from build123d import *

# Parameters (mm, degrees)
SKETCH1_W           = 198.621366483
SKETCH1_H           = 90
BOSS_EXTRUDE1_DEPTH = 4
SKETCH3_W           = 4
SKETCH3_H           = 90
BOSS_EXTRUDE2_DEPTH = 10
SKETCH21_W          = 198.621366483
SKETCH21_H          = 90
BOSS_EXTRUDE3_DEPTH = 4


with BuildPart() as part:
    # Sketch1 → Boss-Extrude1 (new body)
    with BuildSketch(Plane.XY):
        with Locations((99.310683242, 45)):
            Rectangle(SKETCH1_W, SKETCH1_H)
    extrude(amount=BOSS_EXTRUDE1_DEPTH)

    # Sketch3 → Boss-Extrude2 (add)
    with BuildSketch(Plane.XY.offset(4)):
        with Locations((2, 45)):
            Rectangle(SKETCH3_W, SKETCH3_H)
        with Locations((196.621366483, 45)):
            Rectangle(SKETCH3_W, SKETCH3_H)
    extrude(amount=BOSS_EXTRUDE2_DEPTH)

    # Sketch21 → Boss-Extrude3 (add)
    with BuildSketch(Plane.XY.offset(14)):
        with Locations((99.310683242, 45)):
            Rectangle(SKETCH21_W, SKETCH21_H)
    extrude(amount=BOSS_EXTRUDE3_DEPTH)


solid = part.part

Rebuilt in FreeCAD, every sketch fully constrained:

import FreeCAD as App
import Part
import Sketcher

V = App.Vector

doc = App.newDocument("Part")
body = doc.addObject("PartDesign::Body", "Body")

# Sketch on XY plane
sketch1 = body.newObject("Sketcher::SketchObject", "Sketch")
sketch1.AttachmentSupport = (doc.getObject("XY_Plane"), [""])
sketch1.MapMode = "FlatFace"
sketch1.addGeometry([
    Part.LineSegment(V(0, 90, 0), V(0, 0, 0)),
    Part.LineSegment(V(0, 0, 0), V(199, 0, 0)),
    Part.LineSegment(V(199, 0, 0), V(199, 90, 0)),
    Part.LineSegment(V(199, 90, 0), V(0, 90, 0)),
], False)
sketch1.addConstraint([
    Sketcher.Constraint("Coincident", 0, 2, 1, 1),
    Sketcher.Constraint("Coincident", 1, 2, 2, 1),
    Sketcher.Constraint("Coincident", 2, 2, 3, 1),
    Sketcher.Constraint("Coincident", 3, 2, 0, 1),
    Sketcher.Constraint("Vertical", 0),
    Sketcher.Constraint("Horizontal", 1),
    Sketcher.Constraint("Vertical", 2),
    Sketcher.Constraint("Horizontal", 3),
    Sketcher.Constraint("Coincident", 0, 2, -1, 1),
    Sketcher.Constraint("DistanceY", 0, 2, 0, 1, 90.0),
    Sketcher.Constraint("DistanceX", 1, 1, 1, 2, 198.621366),
])
pad1 = body.newObject("PartDesign::Pad", "Pad")
pad1.Profile = sketch1
pad1.Length = 4

# Sketch on XY plane
sketch2 = body.newObject("Sketcher::SketchObject", "Sketch001")
sketch2.AttachmentSupport = (doc.getObject("XY_Plane"), [""])
sketch2.MapMode = "FlatFace"
sketch2.AttachmentOffset = App.Placement(V(0, 0, 4), App.Rotation())
sketch2.addGeometry([
    Part.LineSegment(V(0, 90, 0), V(0, 0, 0)),  # 0
    Part.LineSegment(V(0, 0, 0), V(4, 0, 0)),  # 1
    Part.LineSegment(V(4, 0, 0), V(4, 90, 0)),  # 2
    Part.LineSegment(V(4, 90, 0), V(0, 90, 0)),  # 3
    Part.LineSegment(V(194.6, 90, 0), V(194.6, 0, 0)),  # 4
    Part.LineSegment(V(194.6, 0, 0), V(198.6, 0, 0)),  # 5
    Part.LineSegment(V(198.6, 0, 0), V(198.6, 90, 0)),  # 6
    Part.LineSegment(V(198.6, 90, 0), V(194.6, 90, 0)),  # 7
], False)
sketch2.addConstraint([
    Sketcher.Constraint("Coincident", 0, 2, 1, 1),
    Sketcher.Constraint("Coincident", 1, 2, 2, 1),
    Sketcher.Constraint("Coincident", 2, 2, 3, 1),
    Sketcher.Constraint("Coincident", 3, 2, 0, 1),
    Sketcher.Constraint("Coincident", 4, 2, 5, 1),
    Sketcher.Constraint("Coincident", 5, 2, 6, 1),
    Sketcher.Constraint("Coincident", 6, 2, 7, 1),
    Sketcher.Constraint("Coincident", 7, 2, 4, 1),
    Sketcher.Constraint("Vertical", 0),
    Sketcher.Constraint("Horizontal", 1),
    Sketcher.Constraint("Vertical", 2),
    Sketcher.Constraint("Horizontal", 3),
    Sketcher.Constraint("Vertical", 4),
    Sketcher.Constraint("Horizontal", 5),
    Sketcher.Constraint("Vertical", 6),
    Sketcher.Constraint("Horizontal", 7),
    Sketcher.Constraint("Coincident", 0, 2, -1, 1),
    Sketcher.Constraint("PointOnObject", 4, 2, -1),
    Sketcher.Constraint("Horizontal", 3, 2, 6, 2),
    Sketcher.Constraint("Equal", 3, 5),
    Sketcher.Constraint("DistanceX", 1, 1, 1, 2, 4.0),
    Sketcher.Constraint("DistanceY", 0, 2, 0, 1, 90.0),
    Sketcher.Constraint("DistanceX", -1, 1, 4, 2, 194.621366),
])
pad2 = body.newObject("PartDesign::Pad", "Pad001")
pad2.Profile = sketch2
pad2.Length = 10

# Sketch on XY plane
sketch3 = body.newObject("Sketcher::SketchObject", "Sketch002")
sketch3.AttachmentSupport = (doc.getObject("XY_Plane"), [""])
sketch3.MapMode = "FlatFace"
sketch3.AttachmentOffset = App.Placement(V(0, 0, 14), App.Rotation())
sketch3.addGeometry([
    Part.LineSegment(V(0, 90, 0), V(0, 0, 0)),
    Part.LineSegment(V(0, 0, 0), V(199, 0, 0)),
    Part.LineSegment(V(199, 0, 0), V(199, 90, 0)),
    Part.LineSegment(V(199, 90, 0), V(0, 90, 0)),
], False)
sketch3.addConstraint([
    Sketcher.Constraint("Coincident", 0, 2, 1, 1),
    Sketcher.Constraint("Coincident", 1, 2, 2, 1),
    Sketcher.Constraint("Coincident", 2, 2, 3, 1),
    Sketcher.Constraint("Coincident", 3, 2, 0, 1),
    Sketcher.Constraint("Vertical", 0),
    Sketcher.Constraint("Horizontal", 1),
    Sketcher.Constraint("Vertical", 2),
    Sketcher.Constraint("Horizontal", 3),
    Sketcher.Constraint("Coincident", 0, 2, -1, 1),
    Sketcher.Constraint("DistanceY", 0, 2, 0, 1, 90.0),
    Sketcher.Constraint("DistanceX", 1, 1, 1, 2, 198.621366),
])
pad3 = body.newObject("PartDesign::Pad", "Pad002")
pad3.Profile = sketch3
pad3.Length = 4

doc.recompute()
